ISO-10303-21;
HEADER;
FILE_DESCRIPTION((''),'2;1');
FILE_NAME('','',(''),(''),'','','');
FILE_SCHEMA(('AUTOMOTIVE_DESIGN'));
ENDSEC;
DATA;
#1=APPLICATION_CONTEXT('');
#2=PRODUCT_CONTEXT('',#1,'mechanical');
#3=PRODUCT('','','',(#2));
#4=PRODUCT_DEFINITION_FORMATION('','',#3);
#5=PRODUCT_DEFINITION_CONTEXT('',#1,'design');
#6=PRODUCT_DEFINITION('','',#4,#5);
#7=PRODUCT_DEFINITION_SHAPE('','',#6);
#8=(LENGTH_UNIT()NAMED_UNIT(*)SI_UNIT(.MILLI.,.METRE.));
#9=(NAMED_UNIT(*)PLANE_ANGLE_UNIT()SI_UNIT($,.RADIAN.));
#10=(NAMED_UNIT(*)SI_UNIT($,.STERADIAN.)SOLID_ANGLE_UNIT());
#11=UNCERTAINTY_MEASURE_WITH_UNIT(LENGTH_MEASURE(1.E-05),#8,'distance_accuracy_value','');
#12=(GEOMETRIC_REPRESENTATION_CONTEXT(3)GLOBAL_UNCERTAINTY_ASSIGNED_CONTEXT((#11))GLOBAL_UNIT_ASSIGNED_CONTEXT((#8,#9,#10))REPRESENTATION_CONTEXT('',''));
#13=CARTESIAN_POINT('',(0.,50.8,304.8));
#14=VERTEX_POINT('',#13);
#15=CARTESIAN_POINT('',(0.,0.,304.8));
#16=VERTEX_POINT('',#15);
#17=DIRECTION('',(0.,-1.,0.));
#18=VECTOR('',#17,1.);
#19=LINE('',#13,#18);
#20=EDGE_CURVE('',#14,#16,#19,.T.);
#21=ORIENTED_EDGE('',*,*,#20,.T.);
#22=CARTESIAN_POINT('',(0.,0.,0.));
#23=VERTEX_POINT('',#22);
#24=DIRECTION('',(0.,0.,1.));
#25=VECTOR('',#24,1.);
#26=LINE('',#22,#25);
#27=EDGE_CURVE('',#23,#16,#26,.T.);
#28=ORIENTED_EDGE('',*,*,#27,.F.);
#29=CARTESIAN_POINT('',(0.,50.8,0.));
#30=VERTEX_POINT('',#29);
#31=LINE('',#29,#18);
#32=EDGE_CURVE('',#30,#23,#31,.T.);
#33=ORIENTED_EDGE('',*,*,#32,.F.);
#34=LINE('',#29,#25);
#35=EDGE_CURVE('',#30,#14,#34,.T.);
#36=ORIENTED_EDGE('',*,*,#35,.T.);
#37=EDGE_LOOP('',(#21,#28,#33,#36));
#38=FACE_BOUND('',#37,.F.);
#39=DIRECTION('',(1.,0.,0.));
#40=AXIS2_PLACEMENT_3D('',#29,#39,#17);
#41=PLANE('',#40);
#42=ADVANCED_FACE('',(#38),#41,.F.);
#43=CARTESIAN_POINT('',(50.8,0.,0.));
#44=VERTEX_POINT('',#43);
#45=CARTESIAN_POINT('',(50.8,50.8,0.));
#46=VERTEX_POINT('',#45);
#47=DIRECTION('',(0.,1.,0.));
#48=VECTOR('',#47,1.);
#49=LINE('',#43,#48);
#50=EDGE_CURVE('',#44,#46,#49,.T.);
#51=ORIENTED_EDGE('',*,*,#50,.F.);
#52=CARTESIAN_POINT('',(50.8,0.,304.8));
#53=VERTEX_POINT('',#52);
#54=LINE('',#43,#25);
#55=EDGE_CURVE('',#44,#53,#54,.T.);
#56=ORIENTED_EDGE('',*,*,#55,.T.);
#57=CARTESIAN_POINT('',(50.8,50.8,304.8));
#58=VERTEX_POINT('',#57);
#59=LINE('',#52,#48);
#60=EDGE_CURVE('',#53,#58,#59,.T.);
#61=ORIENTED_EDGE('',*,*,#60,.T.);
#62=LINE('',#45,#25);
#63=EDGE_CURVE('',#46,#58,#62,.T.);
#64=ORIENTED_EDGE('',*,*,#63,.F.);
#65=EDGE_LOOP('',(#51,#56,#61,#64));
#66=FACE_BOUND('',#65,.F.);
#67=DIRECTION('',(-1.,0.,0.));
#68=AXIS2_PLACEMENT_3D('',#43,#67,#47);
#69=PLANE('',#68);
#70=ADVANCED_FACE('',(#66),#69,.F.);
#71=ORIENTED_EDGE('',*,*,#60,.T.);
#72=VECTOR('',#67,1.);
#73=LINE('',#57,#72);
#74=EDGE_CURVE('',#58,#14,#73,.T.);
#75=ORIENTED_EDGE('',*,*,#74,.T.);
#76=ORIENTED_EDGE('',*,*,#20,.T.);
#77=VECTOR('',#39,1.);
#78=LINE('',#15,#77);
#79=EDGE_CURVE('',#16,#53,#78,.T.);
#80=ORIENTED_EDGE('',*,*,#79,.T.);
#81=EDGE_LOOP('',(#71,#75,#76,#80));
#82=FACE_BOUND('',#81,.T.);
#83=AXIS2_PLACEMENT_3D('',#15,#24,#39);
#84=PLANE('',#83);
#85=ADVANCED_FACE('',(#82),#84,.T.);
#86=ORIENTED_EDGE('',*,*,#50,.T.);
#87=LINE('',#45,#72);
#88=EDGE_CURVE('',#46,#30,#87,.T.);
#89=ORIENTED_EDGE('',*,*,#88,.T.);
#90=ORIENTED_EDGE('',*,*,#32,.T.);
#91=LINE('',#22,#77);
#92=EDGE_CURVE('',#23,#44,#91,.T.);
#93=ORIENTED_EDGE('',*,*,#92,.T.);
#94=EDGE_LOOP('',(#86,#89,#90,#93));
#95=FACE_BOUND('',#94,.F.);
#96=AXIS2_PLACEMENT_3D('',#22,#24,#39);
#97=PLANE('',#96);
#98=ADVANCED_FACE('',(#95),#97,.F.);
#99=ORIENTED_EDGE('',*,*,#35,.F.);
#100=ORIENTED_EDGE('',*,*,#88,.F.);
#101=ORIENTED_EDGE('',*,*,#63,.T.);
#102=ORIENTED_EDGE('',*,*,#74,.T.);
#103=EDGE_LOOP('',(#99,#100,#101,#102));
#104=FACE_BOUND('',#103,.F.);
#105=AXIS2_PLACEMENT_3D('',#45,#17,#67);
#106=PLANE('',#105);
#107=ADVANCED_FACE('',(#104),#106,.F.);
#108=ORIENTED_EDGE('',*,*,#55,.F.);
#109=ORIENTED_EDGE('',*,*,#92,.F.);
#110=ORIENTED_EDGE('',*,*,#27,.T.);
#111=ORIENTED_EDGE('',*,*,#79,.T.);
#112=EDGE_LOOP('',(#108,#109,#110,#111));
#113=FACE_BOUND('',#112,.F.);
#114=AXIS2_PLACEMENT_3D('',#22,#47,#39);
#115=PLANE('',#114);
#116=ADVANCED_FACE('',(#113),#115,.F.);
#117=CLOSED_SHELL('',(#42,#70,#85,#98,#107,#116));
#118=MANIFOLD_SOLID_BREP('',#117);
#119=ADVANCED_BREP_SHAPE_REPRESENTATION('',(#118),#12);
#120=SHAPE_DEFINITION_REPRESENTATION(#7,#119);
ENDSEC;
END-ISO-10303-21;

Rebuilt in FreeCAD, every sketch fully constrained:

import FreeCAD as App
import Part
import Sketcher
Q = App.Units.Quantity

doc = App.newDocument("Part")
params = doc.addObject("Spreadsheet::Sheet", "Params")
for row, (alias, value) in enumerate([
    ("sketch1_width", "2 in"),
    ("pad1_length", "12 in"),
], start=1):
    params.set(f"A{row}", alias)
    params.set(f"B{row}", "=" + value)
    params.setAlias(f"B{row}", alias)

body = doc.addObject("PartDesign::Body", "Body")

sketch1 = body.newObject("Sketcher::SketchObject", "Sketch")
sketch1.AttachmentSupport = (doc.getObject("XY_Plane"), [""])
sketch1.MapMode = "FlatFace"
sketch1.addGeometry(Part.LineSegment(App.Vector(0, 50.8, 0), App.Vector(0, 0, 0)), False)
sketch1.addGeometry(Part.LineSegment(App.Vector(0, 0, 0), App.Vector(50.8, 0, 0)), False)
sketch1.addGeometry(Part.LineSegment(App.Vector(50.8, 0, 0), App.Vector(50.8, 50.8, 0)), False)
sketch1.addGeometry(Part.LineSegment(App.Vector(50.8, 50.8, 0), App.Vector(0, 50.8, 0)), False)
sketch1.addConstraint(Sketcher.Constraint("Coincident", 0, 2, 1, 1))
sketch1.addConstraint(Sketcher.Constraint("Coincident", 1, 2, 2, 1))
sketch1.addConstraint(Sketcher.Constraint("Coincident", 2, 2, 3, 1))
sketch1.addConstraint(Sketcher.Constraint("Coincident", 3, 2, 0, 1))
sketch1.addConstraint(Sketcher.Constraint("Vertical", 0))
sketch1.addConstraint(Sketcher.Constraint("Horizontal", 1))
sketch1.addConstraint(Sketcher.Constraint("Vertical", 2))
sketch1.addConstraint(Sketcher.Constraint("Horizontal", 3))
sketch1.addConstraint(Sketcher.Constraint("Coincident", 0, 2, -1, 1))
sketch1.addConstraint(Sketcher.Constraint("Equal", 3, 0))
sketch1.addConstraint(Sketcher.Constraint("DistanceX", 1, 1, 1, 2, Q("2 in")))
sketch1.setExpression("Constraints[10]", "Params.sketch1_width")
pad1 = body.newObject("PartDesign::Pad", "Pad")
pad1.Profile = sketch1
pad1.setExpression("Length", "Params.pad1_length")

doc.recompute()
